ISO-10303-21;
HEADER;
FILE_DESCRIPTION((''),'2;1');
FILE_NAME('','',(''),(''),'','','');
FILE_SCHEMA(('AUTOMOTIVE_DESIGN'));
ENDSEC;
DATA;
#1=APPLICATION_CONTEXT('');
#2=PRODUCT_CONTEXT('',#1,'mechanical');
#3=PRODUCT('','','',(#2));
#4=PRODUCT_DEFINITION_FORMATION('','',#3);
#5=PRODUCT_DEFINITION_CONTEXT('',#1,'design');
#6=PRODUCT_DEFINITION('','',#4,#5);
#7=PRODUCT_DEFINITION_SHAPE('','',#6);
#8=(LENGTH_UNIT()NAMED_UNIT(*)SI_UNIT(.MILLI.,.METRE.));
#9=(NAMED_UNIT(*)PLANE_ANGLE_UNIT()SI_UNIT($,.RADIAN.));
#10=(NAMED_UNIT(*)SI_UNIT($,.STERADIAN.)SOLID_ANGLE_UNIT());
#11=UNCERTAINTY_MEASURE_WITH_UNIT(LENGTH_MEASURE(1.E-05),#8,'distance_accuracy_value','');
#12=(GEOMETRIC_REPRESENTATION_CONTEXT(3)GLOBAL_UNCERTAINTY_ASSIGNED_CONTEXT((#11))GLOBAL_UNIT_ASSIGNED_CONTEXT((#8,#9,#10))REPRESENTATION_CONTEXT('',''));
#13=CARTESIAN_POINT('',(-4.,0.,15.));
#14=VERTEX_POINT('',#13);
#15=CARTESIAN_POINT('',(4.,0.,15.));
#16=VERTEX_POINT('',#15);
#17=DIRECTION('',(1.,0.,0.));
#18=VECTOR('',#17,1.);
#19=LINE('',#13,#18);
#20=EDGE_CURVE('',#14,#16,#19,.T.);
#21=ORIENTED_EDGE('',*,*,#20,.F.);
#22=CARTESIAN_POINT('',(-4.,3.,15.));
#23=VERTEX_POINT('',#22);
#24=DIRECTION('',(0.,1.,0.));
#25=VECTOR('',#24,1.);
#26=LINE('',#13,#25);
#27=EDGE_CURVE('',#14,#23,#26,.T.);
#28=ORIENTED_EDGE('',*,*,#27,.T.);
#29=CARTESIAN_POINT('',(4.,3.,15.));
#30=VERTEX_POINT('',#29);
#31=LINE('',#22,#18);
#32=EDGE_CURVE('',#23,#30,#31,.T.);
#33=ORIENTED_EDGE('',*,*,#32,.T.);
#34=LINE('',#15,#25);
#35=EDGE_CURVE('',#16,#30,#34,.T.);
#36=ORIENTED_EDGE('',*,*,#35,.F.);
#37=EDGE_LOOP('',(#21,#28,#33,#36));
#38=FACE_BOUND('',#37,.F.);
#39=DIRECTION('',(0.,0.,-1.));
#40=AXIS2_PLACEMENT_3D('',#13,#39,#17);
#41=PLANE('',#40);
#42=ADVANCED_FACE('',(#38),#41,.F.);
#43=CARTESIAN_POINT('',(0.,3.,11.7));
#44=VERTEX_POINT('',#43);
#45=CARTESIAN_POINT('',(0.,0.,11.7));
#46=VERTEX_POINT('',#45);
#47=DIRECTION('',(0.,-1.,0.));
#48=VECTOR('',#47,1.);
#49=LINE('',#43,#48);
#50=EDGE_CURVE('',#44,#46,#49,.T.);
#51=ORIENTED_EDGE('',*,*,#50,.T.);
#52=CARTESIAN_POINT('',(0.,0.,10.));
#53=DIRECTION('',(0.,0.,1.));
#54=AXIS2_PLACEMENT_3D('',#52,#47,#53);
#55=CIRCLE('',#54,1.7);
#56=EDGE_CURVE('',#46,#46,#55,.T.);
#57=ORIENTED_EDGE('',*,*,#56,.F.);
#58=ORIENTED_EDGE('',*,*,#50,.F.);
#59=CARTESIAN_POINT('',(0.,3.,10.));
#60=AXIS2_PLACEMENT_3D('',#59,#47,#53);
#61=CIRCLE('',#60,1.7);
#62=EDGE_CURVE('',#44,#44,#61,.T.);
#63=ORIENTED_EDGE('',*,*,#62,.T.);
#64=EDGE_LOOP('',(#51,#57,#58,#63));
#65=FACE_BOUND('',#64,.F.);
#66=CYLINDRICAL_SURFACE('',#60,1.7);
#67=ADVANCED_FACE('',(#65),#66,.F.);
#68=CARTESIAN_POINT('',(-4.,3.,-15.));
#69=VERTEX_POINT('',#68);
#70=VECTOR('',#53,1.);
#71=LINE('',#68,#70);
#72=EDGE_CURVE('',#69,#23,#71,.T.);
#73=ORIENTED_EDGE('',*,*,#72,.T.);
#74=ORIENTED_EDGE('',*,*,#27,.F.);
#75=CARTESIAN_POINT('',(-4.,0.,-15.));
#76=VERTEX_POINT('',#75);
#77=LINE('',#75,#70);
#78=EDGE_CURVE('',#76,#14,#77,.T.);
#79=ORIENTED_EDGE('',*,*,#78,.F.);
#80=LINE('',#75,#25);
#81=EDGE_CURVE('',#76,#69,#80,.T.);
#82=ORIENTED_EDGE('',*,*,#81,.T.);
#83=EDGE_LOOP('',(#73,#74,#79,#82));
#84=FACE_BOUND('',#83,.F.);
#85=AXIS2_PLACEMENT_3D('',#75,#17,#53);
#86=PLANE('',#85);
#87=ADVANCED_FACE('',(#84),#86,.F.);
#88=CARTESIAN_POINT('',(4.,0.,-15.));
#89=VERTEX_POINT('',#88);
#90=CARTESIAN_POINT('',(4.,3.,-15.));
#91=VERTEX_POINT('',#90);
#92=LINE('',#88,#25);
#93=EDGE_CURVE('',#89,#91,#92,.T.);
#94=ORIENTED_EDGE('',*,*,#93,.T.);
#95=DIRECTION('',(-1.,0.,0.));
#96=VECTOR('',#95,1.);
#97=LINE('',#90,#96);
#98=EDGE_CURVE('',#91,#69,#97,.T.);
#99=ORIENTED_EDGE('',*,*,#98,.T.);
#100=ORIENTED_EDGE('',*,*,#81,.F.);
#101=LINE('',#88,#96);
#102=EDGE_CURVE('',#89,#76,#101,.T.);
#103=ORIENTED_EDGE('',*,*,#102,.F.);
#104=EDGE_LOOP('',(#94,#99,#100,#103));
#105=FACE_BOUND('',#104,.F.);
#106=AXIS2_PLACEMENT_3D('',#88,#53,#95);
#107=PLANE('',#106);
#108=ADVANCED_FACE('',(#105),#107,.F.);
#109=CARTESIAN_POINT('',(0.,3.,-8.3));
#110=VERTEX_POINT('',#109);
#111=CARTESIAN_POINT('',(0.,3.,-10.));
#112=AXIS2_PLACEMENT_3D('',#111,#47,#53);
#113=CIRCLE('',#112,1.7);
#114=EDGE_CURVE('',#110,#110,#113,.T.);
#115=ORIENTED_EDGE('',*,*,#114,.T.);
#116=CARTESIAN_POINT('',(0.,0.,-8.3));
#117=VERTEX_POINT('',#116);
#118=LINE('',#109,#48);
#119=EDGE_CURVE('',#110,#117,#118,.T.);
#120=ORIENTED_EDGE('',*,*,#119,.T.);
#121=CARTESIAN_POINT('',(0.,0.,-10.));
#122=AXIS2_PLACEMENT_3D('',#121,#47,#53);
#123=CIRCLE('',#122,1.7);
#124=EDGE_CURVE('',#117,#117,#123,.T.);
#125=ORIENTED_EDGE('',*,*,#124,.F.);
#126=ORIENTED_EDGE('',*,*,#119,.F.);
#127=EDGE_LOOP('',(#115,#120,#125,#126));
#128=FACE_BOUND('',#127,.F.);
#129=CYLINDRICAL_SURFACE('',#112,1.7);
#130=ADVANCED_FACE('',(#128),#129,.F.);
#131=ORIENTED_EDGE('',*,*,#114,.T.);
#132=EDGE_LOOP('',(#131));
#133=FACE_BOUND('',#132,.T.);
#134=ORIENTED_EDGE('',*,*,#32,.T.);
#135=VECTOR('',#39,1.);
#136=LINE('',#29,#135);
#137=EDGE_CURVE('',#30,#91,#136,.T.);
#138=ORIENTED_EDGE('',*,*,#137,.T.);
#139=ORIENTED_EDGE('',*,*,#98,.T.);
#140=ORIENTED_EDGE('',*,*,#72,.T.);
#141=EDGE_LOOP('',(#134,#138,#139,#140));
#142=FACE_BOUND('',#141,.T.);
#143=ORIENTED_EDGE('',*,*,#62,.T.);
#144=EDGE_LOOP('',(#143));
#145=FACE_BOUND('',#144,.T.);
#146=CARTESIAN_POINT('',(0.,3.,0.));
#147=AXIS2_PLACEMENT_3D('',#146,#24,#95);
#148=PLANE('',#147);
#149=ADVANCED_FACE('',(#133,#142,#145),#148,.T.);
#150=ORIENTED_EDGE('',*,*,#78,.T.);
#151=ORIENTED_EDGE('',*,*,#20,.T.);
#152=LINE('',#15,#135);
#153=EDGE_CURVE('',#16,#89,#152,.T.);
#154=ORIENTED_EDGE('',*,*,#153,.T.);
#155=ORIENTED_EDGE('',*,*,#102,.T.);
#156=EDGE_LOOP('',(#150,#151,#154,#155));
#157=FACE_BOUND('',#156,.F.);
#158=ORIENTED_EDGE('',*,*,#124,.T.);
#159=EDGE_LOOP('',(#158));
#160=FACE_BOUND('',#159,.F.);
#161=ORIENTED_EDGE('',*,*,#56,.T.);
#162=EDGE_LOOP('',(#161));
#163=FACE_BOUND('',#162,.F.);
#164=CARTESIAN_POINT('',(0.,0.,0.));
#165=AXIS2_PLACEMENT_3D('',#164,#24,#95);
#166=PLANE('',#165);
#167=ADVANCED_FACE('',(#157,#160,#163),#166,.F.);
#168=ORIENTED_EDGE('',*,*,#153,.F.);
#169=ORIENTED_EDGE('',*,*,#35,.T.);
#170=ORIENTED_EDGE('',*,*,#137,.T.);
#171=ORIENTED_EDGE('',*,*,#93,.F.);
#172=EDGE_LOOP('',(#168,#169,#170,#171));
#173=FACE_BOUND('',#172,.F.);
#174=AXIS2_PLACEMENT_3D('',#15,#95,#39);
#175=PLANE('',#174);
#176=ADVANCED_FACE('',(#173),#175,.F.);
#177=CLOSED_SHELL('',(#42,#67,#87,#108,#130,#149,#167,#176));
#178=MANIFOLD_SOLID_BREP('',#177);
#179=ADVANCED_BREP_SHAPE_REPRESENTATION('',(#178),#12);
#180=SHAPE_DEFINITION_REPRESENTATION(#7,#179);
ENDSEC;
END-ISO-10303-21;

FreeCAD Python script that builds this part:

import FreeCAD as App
import Part
import Sketcher

doc = App.newDocument("Part")
params = doc.addObject("Spreadsheet::Sheet", "Params")
for row, (alias, value) in enumerate([
    ("sketch1_width", "8 mm"),
    ("sketch1_height", "30 mm"),
    ("pad1_length", "3 mm"),
    ("sketch2_diameter", "3.4 mm"),
    ("hole_diameter", "3.4 mm"),
], start=1):
    params.set(f"A{row}", alias)
    params.set(f"B{row}", "=" + value)
    params.setAlias(f"B{row}", alias)

body = doc.addObject("PartDesign::Body", "Body")

# Sketch on XZ plane
sketch1 = body.newObject("Sketcher::SketchObject", "Sketch")
sketch1.AttachmentSupport = (doc.getObject("XZ_Plane"), [""])
sketch1.MapMode = "FlatFace"
sketch1.addGeometry(Part.LineSegment(App.Vector(4, 15, 0), App.Vector(4, -15, 0)), False)
sketch1.addGeometry(Part.LineSegment(App.Vector(4, -15, 0), App.Vector(-4, -15, 0)), False)
sketch1.addGeometry(Part.LineSegment(App.Vector(-4, -15, 0), App.Vector(-4, 15, 0)), False)
sketch1.addGeometry(Part.LineSegment(App.Vector(-4, 15, 0), App.Vector(4, 15, 0)), False)
sketch1.addConstraint(Sketcher.Constraint("Coincident", 0, 2, 1, 1))
sketch1.addConstraint(Sketcher.Constraint("Coincident", 1, 2, 2, 1))
sketch1.addConstraint(Sketcher.Constraint("Coincident", 2, 2, 3, 1))
sketch1.addConstraint(Sketcher.Constraint("Coincident", 3, 2, 0, 1))
sketch1.addConstraint(Sketcher.Constraint("Vertical", 0))
sketch1.addConstraint(Sketcher.Constraint("Horizontal", 1))
sketch1.addConstraint(Sketcher.Constraint("Vertical", 2))
sketch1.addConstraint(Sketcher.Constraint("Horizontal", 3))
sketch1.addConstraint(Sketcher.Constraint("Symmetric", 0, 2, 2, 2, -1, 1))
sketch1.addConstraint(Sketcher.Constraint("DistanceX", 1, 2, 1, 1, 8.0))
sketch1.addConstraint(Sketcher.Constraint("DistanceY", 0, 2, 0, 1, 30.0))
sketch1.setExpression("Constraints[9]", "Params.sketch1_width")
sketch1.setExpression("Constraints[10]", "Params.sketch1_height")
pad1 = body.newObject("PartDesign::Pad", "Pad")
pad1.Profile = sketch1
pad1.setExpression("Length", "Params.pad1_length")
pad1.Reversed = True

# Sketch on XZ plane
sketch2 = body.newObject("Sketcher::SketchObject", "Sketch001")
sketch2.AttachmentSupport = (doc.getObject("XZ_Plane"), [""])
sketch2.MapMode = "FlatFace"
sketch2.AttachmentOffset = App.Placement(App.Vector(0, 0, -3), App.Rotation())
sketch2.addGeometry(Part.Circle(App.Vector(0, 10, 0), App.Vector(0, 0, 1), 1.7), False)
sketch2.addGeometry(Part.Circle(App.Vector(0, -10, 0), App.Vector(0, 0, 1), 1.7), False)
sketch2.addConstraint(Sketcher.Constraint("Equal", 0, 1))
sketch2.addConstraint(Sketcher.Constraint("Symmetric", 0, 3, 1, 3, -1, 1))
sketch2.addConstraint(Sketcher.Constraint("PointOnObject", 0, 3, -2))
sketch2.addConstraint(Sketcher.Constraint("Diameter", 0, 3.4))
sketch2.addConstraint(Sketcher.Constraint("DistanceY", -1, 1, 0, 3, 10.0))
sketch2.setExpression("Constraints[3]", "Params.sketch2_diameter")
doc.recompute()
hole = body.newObject("PartDesign::Hole", "Hole")
hole.Profile = sketch2
hole.ThreadType = "None"
hole.setExpression("Diameter", "Params.hole_diameter")
hole.DepthType = "ThroughAll"
hole.Reversed = True

doc.recompute()
